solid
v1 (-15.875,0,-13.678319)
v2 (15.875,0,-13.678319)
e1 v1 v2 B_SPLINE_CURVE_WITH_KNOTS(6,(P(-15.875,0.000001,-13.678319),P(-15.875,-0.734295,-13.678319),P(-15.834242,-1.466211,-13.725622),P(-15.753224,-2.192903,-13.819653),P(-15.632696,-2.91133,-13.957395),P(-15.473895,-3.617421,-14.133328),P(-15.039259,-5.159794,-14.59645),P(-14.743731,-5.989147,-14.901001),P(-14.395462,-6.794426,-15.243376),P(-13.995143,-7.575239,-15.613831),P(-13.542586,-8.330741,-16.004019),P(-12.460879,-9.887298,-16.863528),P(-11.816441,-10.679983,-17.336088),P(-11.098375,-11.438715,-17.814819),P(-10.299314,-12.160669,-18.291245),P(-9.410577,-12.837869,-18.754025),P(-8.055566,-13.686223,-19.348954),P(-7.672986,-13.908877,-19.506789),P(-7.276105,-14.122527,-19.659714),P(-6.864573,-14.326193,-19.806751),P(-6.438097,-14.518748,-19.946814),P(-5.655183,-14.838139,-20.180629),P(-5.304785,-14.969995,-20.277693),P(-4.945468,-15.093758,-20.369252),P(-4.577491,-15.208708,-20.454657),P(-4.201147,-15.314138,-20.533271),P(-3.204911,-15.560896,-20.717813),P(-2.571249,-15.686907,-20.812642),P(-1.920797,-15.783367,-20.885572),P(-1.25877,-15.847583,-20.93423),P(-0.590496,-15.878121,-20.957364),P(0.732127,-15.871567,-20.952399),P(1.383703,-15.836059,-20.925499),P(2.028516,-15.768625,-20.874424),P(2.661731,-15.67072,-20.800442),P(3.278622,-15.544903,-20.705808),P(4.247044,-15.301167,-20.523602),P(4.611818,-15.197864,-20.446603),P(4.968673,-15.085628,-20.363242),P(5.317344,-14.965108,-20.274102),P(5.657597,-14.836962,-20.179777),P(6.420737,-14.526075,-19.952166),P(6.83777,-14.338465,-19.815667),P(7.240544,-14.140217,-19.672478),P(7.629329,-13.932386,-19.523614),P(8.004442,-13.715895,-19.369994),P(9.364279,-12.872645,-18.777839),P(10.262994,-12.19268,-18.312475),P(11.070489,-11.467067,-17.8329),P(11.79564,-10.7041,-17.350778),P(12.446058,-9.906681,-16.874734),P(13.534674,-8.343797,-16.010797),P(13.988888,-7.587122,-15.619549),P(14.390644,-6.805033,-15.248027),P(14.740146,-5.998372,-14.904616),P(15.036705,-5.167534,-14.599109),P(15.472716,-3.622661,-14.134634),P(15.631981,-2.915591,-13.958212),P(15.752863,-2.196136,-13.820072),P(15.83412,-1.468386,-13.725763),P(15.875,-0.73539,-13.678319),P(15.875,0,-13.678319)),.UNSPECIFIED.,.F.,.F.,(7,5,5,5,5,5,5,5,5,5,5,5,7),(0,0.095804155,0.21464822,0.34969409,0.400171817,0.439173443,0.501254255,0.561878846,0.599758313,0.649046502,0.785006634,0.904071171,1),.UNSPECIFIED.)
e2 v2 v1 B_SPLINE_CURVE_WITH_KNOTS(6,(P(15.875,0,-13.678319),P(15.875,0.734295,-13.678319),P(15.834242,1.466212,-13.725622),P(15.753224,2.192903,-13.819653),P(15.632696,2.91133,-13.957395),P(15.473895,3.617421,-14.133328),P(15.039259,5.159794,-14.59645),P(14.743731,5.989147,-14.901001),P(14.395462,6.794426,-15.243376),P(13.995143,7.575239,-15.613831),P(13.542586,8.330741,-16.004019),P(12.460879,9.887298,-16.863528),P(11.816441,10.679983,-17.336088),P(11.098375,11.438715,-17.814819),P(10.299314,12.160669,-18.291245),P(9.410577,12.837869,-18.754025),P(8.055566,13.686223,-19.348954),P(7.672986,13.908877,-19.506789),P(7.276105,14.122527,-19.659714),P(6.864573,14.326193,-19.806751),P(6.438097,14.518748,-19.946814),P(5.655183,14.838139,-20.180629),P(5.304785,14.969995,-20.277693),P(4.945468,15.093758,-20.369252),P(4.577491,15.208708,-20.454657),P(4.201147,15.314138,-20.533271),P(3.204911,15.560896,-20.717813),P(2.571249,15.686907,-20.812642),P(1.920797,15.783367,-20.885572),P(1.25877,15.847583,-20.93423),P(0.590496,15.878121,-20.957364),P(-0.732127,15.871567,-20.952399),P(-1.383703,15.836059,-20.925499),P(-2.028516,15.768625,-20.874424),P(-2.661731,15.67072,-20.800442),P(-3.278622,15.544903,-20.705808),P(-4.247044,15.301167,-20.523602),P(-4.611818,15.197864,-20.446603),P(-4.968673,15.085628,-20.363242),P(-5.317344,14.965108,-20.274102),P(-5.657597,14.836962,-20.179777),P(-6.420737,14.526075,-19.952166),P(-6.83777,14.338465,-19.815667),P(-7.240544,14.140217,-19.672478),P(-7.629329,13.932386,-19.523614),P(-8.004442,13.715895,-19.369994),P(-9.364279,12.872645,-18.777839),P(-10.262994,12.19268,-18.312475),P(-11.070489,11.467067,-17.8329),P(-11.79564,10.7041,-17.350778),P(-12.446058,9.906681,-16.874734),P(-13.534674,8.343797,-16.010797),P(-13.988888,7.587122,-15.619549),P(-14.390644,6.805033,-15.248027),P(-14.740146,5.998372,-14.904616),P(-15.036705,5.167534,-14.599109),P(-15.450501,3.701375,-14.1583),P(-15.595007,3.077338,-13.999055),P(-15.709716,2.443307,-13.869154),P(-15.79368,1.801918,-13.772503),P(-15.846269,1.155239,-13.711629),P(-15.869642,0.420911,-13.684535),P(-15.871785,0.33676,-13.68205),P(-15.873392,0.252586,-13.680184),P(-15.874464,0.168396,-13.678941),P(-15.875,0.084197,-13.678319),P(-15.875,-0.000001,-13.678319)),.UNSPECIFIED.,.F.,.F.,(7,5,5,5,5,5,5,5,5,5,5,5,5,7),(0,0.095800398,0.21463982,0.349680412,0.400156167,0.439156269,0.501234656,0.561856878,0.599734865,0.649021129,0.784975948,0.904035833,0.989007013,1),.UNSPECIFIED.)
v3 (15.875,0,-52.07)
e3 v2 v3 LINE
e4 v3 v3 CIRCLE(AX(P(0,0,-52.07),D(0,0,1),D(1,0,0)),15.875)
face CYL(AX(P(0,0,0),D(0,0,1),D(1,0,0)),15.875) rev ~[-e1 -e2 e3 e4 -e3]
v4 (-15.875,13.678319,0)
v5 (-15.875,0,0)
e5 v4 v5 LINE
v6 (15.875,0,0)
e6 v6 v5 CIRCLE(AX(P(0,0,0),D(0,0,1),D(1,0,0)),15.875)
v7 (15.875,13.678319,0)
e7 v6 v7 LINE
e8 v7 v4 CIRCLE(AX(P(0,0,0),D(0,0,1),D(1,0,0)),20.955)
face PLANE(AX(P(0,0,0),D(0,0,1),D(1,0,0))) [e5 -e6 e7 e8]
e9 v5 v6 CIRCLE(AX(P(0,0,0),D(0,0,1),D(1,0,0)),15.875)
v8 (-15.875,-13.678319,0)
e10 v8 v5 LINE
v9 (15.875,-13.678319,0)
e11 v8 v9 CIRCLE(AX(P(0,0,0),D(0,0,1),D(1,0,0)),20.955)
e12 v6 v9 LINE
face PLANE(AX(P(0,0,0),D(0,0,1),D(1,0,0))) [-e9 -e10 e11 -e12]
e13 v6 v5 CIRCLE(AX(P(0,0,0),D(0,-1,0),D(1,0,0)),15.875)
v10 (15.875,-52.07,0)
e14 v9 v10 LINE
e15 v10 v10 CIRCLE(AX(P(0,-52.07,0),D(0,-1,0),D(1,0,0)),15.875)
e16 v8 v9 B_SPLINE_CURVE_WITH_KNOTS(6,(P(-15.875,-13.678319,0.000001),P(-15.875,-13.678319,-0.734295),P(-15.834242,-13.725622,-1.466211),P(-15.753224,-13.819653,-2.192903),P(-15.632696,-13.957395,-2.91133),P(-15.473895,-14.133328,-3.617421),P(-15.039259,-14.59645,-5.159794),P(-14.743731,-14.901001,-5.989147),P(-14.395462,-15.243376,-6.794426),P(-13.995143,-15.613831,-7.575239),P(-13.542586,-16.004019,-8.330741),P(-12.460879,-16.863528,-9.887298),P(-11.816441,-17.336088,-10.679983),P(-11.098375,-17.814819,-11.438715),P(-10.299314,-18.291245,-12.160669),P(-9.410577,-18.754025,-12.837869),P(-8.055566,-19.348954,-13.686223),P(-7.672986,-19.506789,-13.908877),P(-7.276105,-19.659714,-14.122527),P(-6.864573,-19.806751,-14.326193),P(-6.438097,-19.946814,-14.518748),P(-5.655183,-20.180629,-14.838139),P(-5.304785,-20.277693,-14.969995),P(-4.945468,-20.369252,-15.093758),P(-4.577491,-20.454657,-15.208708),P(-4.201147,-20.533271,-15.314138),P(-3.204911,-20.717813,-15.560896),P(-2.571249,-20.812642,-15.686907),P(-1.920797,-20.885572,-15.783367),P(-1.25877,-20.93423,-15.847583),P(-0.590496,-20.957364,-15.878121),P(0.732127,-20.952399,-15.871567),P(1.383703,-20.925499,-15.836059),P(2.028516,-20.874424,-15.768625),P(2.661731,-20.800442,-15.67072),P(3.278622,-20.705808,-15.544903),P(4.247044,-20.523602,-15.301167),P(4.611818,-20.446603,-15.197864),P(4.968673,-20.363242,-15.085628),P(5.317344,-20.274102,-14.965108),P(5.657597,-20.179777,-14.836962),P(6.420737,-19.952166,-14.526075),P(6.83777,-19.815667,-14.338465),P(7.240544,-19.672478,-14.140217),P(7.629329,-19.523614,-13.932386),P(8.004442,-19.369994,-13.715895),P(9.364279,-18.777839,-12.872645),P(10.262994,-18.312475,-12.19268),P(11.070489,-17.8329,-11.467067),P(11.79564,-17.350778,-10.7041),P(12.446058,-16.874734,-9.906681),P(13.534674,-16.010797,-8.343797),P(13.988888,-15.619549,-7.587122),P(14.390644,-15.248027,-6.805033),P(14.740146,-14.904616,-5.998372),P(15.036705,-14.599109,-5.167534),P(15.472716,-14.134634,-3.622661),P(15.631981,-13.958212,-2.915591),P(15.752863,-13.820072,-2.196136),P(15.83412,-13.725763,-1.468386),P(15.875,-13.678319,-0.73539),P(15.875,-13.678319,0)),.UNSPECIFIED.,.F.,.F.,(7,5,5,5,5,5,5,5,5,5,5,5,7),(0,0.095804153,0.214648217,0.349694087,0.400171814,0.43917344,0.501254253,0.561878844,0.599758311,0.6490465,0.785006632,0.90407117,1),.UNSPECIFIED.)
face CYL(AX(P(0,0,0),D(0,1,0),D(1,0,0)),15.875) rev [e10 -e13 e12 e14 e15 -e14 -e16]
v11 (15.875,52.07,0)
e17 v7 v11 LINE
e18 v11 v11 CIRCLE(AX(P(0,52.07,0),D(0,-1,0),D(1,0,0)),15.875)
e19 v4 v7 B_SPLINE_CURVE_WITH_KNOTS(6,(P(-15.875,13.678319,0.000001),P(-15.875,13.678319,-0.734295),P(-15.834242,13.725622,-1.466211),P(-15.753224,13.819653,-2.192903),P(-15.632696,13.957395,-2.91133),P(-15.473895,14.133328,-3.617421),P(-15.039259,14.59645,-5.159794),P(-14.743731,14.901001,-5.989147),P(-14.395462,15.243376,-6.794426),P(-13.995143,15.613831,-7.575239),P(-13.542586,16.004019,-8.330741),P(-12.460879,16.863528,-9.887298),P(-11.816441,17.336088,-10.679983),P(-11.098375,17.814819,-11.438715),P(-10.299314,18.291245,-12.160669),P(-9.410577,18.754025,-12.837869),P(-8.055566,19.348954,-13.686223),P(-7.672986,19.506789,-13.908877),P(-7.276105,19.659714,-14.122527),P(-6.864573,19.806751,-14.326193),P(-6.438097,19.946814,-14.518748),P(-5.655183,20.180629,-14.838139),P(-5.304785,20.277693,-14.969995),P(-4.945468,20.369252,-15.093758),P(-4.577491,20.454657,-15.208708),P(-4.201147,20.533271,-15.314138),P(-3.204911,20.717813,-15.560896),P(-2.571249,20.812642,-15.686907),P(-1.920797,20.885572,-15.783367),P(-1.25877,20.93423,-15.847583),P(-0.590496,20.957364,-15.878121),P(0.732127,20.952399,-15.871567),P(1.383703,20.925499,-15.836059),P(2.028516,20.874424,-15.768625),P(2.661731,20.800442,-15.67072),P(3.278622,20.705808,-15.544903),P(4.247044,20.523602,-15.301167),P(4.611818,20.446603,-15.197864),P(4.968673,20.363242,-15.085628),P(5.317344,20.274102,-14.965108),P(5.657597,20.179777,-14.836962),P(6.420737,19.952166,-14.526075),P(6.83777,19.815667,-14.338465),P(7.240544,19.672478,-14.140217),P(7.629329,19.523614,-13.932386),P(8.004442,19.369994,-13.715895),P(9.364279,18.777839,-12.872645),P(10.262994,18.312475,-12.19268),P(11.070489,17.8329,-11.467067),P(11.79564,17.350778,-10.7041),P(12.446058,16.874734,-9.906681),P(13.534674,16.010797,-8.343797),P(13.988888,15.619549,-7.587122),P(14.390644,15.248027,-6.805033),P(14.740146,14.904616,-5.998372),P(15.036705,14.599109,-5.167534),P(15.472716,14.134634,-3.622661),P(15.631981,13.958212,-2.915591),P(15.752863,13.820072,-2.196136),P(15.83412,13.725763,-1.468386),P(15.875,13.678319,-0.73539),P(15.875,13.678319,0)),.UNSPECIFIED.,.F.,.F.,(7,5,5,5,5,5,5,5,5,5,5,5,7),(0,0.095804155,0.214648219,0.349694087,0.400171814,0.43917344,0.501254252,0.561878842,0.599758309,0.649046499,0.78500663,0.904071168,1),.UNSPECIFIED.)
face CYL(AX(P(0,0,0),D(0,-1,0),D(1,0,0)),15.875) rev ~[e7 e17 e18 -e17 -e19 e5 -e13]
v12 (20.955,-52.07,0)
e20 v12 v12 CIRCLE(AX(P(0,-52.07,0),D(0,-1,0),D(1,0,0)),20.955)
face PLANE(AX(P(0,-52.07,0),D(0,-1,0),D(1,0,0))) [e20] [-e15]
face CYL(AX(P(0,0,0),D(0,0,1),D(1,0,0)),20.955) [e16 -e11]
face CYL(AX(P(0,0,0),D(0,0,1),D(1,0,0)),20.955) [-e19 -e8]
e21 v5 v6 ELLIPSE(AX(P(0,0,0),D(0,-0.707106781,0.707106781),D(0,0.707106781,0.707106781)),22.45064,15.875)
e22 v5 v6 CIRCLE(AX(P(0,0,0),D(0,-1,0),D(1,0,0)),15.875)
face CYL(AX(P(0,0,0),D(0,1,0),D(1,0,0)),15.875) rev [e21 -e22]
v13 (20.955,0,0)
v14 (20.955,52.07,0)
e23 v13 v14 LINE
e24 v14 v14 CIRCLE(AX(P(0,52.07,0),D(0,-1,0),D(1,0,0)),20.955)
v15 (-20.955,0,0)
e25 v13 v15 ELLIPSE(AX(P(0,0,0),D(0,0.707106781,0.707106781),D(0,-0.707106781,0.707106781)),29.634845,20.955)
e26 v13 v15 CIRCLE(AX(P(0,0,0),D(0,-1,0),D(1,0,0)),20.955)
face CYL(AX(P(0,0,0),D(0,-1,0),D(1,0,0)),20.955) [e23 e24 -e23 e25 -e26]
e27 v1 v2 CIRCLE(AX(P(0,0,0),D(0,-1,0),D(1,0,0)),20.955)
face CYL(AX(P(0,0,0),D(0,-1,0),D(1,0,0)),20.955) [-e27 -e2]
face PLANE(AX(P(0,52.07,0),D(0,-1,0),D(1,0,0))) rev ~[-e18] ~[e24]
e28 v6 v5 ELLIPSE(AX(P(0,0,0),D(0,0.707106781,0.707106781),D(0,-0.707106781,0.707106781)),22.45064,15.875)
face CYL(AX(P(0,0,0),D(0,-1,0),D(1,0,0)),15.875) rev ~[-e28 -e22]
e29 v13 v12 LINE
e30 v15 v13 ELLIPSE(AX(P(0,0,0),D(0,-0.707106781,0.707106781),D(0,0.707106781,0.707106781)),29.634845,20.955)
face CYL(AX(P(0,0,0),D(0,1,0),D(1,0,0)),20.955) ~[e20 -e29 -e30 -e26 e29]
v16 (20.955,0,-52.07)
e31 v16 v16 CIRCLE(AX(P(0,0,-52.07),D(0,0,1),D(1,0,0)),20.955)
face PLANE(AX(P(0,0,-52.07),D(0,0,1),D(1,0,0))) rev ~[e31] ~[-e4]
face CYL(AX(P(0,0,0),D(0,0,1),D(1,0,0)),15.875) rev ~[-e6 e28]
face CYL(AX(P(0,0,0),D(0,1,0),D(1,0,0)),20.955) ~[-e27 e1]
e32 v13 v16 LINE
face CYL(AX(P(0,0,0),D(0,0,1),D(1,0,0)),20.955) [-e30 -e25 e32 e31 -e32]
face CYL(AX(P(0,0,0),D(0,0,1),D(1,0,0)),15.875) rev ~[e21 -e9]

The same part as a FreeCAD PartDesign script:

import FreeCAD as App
import Part
import Sketcher
Q = App.Units.Quantity

doc = App.newDocument("Part")
body = doc.addObject("PartDesign::Body", "Body")

sketch1 = body.newObject("Sketcher::SketchObject", "Sketch")
sketch1.AttachmentSupport = (doc.getObject("XY_Plane"), [""])
sketch1.MapMode = "FlatFace"
sketch1.addGeometry([
    Part.Circle(App.Vector(0, 0, 0), App.Vector(0, 0, 1), 21),
    Part.Circle(App.Vector(0, 0, 0), App.Vector(0, 0, 1), 16),
], False)
sketch1.addConstraint([
    Sketcher.Constraint("Coincident", 0, 3, -1, 1),
    Sketcher.Constraint("Coincident", 1, 3, -1, 1),
    Sketcher.Constraint("Diameter", 0, Q("1.65 in")),
    Sketcher.Constraint("Diameter", 1, Q("1.25 in")),
])
pad1 = body.newObject("PartDesign::Pad", "Pad")
pad1.Profile = sketch1
pad1.Length = Q("2.05 in")
pad1.Reversed = True

sketch2 = body.newObject("Sketcher::SketchObject", "Sketch001")
sketch2.AttachmentSupport = (doc.getObject("XZ_Plane"), [""])
sketch2.MapMode = "FlatFace"
sketch2.addGeometry([
    Part.Circle(App.Vector(0, 0, 0), App.Vector(0, 0, 1), 21),
    Part.Circle(App.Vector(0, 0, 0), App.Vector(0, 0, 1), 16),
], False)
sketch2.addConstraint([
    Sketcher.Constraint("Coincident", 0, 3, -1, 1),
    Sketcher.Constraint("Coincident", 1, 3, -1, 1),
    Sketcher.Constraint("Diameter", 0, Q("1.65 in")),
    Sketcher.Constraint("Diameter", 1, Q("1.25 in")),
])
pad2 = body.newObject("PartDesign::Pad", "Pad001")
pad2.Profile = sketch2
pad2.Type = "TwoLengths"
pad2.Length = Q("2.05 in")
pad2.Length2 = Q("2.05 in")

doc.recompute()
